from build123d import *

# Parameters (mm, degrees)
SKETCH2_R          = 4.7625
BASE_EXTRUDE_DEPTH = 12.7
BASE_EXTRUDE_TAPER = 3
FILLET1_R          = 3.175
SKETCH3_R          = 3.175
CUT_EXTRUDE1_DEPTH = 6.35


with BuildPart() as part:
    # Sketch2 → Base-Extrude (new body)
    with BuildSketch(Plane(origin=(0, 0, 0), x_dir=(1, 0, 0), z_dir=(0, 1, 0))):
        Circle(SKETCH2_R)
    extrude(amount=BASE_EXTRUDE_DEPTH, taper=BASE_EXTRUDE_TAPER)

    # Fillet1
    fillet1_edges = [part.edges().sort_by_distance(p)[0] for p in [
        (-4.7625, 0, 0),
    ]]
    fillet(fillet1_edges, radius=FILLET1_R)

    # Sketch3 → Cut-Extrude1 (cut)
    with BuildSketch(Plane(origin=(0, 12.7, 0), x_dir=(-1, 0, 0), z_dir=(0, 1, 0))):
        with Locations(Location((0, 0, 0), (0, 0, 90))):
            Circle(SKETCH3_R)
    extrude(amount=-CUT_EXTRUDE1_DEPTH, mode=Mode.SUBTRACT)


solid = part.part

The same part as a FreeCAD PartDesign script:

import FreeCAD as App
import Part
import Sketcher
from FreeCAD import Vector
Q = App.Units.Quantity


def edges_at(feature, points):
    """Names of the edges that pass closest to the given points."""
    edges = feature.Shape.Edges
    near = lambda p: min(range(len(edges)), key=lambda i: edges[i].distToShape(Part.Vertex(*p))[0])
    return sorted({f"Edge{near(p) + 1}" for p in points})

doc = App.newDocument("Part")
body = doc.addObject("PartDesign::Body", "Body")

# Sketch on XZ plane
sketch1 = body.newObject("Sketcher::SketchObject", "Sketch")
sketch1.AttachmentSupport = (doc.getObject("XZ_Plane"), [""])
sketch1.MapMode = "FlatFace"
sketch1.addGeometry(Part.Circle(Vector(0, 0, 0), Vector(0, 0, 1), 4.8), False)
sketch1.addConstraint([
    Sketcher.Constraint("Coincident", 0, 3, -1, 1),
    Sketcher.Constraint("Diameter", 0, Q("0.375 in")),
])
pad1 = body.newObject("PartDesign::Pad", "Pad")
pad1.Profile = sketch1
pad1.Length = Q("0.5 in")
pad1.Reversed = True
pad1.TaperAngle = -3
doc.recompute()

fillet = body.newObject("PartDesign::Fillet", "Fillet")
fillet.Base = (pad1, edges_at(pad1, [(-4.763, 0, 0)]))
fillet.Radius = Q("0.125 in")

# Sketch on XZ plane
sketch2 = body.newObject("Sketcher::SketchObject", "Sketch001")
sketch2.AttachmentSupport = (doc.getObject("XZ_Plane"), [""])
sketch2.MapMode = "FlatFace"
sketch2.AttachmentOffset = App.Placement(Vector(0, 0, -0.5 * 25.4), App.Rotation())
sketch2.addGeometry(Part.Circle(Vector(0, 0, 0), Vector(0, 0, 1), 3.2), False)
sketch2.addConstraint([
    Sketcher.Constraint("Coincident", 0, 3, -1, 1),
    Sketcher.Constraint("Diameter", 0, Q("0.25 in")),
])
pocket1 = body.newObject("PartDesign::Pocket", "Pocket")
pocket1.Profile = sketch2
pocket1.Length = Q("0.25 in")
pocket1.Reversed = True

doc.recompute()
